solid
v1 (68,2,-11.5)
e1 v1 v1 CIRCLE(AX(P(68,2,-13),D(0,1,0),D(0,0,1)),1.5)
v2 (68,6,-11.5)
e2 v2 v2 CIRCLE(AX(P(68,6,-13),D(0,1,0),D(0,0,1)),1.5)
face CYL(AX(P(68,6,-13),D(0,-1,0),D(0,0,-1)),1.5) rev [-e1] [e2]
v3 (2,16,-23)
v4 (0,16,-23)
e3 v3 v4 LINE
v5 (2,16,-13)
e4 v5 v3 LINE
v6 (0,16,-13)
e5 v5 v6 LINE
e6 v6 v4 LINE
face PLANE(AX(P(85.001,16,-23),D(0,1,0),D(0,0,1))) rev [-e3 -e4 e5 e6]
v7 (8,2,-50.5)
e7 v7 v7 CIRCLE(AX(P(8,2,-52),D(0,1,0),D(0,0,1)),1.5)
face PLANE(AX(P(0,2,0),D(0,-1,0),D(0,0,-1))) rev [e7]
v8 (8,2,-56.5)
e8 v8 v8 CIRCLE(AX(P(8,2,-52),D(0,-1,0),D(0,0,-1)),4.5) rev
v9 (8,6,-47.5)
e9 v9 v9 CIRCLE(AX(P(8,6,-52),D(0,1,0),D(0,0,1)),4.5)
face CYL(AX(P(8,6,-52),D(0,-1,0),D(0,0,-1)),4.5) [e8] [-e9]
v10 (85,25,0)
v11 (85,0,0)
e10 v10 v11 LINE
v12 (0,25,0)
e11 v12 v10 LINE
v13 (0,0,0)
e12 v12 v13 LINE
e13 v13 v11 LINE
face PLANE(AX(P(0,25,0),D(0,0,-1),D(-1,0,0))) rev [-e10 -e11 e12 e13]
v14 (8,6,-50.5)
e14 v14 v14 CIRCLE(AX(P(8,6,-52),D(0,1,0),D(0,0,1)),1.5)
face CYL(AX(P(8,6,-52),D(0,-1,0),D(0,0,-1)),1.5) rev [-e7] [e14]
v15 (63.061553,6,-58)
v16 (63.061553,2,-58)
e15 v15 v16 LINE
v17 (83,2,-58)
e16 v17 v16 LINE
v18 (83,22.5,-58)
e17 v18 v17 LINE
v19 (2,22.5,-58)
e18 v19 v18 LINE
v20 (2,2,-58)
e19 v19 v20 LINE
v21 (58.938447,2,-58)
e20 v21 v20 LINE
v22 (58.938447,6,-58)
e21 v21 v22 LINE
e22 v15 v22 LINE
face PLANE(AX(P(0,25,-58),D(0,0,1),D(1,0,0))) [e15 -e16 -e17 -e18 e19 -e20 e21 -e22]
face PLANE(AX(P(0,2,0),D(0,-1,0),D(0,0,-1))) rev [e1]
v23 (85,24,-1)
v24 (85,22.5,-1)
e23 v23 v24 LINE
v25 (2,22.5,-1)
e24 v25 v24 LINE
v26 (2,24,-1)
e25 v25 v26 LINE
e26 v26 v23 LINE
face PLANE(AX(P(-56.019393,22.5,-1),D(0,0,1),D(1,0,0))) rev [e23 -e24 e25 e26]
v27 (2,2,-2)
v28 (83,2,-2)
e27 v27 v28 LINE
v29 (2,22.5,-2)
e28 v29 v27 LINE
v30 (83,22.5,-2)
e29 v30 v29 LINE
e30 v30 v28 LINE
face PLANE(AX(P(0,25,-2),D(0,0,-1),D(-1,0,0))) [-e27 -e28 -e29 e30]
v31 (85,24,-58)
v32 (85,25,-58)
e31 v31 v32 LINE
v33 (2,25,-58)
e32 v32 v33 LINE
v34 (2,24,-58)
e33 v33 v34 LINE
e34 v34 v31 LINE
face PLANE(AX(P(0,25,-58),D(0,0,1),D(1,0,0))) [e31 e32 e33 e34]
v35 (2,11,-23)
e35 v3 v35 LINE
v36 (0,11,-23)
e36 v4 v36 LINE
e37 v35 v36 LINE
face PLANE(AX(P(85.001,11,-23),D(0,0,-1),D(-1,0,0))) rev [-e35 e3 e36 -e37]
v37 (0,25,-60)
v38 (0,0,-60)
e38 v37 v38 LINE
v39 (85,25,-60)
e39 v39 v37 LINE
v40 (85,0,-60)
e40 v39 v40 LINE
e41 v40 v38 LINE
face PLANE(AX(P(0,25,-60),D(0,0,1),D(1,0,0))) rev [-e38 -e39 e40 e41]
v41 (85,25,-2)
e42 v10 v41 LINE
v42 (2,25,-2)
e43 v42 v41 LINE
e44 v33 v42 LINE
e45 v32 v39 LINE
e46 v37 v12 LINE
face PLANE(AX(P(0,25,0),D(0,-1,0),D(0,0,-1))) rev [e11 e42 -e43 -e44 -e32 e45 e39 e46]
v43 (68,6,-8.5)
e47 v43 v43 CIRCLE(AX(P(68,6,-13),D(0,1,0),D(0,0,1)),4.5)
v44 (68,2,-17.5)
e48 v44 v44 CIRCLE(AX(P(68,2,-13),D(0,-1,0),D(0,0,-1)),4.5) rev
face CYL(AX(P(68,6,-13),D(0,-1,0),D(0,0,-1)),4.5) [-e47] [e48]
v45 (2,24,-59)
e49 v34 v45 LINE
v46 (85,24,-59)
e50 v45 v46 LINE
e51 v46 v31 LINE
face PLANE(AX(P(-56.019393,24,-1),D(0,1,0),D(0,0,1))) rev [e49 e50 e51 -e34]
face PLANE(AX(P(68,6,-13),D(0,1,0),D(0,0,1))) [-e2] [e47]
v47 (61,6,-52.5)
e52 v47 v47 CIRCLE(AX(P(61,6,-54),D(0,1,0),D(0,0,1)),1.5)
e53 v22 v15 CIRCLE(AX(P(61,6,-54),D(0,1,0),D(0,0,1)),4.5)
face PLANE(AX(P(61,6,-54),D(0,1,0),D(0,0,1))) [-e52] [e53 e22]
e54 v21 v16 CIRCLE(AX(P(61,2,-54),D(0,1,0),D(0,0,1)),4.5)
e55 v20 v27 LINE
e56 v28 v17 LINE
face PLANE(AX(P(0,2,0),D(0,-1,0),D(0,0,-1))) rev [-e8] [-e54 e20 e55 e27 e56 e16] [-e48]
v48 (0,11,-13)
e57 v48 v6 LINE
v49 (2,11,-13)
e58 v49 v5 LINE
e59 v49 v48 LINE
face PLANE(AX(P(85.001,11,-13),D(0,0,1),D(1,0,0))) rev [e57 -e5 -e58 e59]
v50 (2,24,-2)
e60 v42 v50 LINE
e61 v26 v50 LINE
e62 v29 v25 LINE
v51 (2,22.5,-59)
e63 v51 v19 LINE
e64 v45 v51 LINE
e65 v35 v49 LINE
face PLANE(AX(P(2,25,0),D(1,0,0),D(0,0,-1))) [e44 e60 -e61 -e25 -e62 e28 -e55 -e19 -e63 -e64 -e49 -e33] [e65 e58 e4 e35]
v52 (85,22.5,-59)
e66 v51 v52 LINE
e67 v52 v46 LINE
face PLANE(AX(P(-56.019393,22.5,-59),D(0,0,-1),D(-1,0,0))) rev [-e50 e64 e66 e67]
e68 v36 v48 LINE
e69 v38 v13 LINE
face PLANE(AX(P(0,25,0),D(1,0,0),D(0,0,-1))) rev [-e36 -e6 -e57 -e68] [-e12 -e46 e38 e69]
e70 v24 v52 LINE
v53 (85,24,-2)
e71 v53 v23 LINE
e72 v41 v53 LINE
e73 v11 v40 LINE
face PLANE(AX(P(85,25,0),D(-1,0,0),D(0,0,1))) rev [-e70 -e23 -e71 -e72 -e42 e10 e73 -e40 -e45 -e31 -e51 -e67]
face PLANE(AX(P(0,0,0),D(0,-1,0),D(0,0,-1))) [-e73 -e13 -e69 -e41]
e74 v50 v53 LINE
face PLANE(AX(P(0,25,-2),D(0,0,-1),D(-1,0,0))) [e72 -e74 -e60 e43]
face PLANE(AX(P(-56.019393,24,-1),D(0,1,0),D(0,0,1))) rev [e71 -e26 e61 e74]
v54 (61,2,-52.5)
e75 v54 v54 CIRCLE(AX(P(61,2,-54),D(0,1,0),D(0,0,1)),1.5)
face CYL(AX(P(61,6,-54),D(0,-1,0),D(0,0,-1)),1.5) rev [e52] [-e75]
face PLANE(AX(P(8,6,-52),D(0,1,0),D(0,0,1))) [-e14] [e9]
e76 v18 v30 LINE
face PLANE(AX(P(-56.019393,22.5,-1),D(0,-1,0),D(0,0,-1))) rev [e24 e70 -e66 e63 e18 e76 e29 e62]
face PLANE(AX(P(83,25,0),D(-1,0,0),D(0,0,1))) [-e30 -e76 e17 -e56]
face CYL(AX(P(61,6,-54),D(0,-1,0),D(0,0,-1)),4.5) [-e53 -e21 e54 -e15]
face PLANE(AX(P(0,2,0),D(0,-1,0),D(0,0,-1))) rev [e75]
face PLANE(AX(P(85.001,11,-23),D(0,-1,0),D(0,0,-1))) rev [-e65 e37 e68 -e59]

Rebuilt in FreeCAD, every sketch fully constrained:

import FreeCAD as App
import Part
import Sketcher


def faces_at(feature, points):
    """Names of the faces that lie closest to the given points."""
    faces = feature.Shape.Faces
    near = lambda p: min(range(len(faces)), key=lambda i: faces[i].distToShape(Part.Vertex(*p))[0])
    return sorted({f"Face{near(p) + 1}" for p in points})


def add_polygon(sketch, points):
    """Adds a closed chain of lines whose ends are joined by coincident constraints."""
    first, n = sketch.GeometryCount, len(points)
    for a, b in zip(points, points[1:] + points[:1]):
        sketch.addGeometry(Part.LineSegment(App.Vector(*a, 0), App.Vector(*b, 0)), False)
    for i in range(n):
        sketch.addConstraint(Sketcher.Constraint("Coincident", first + i, 2, first + (i + 1) % n, 1))

doc = App.newDocument("Part")
body = doc.addObject("PartDesign::Body", "Body")

# Sketch on XZ plane
sketch1 = doc.addObject("Sketcher::SketchObject", "Sketch")
body.addObject(sketch1)
sketch1.AttachmentSupport = (doc.XZ_Plane, [""])
sketch1.MapMode = "FlatFace"
add_polygon(sketch1, [(0, -60), (0, 0), (85, 0), (85, -60)])  # lines 0-3
sketch1.addConstraint([
    Sketcher.Constraint("Vertical", 0),
    Sketcher.Constraint("Horizontal", 1),
    Sketcher.Constraint("Vertical", 2),
    Sketcher.Constraint("Horizontal", 3),
    Sketcher.Constraint("Coincident", 0, 2, -1, 1),
    Sketcher.Constraint("DistanceX", 1, 1, 1, 2, 85.0),
    Sketcher.Constraint("DistanceY", 0, 1, 0, 2, 60.0),
])
pad1 = doc.addObject("PartDesign::Pad", "Pad")
body.addObject(pad1)
pad1.Profile = sketch1
pad1.Length = 25
pad1.Reversed = True
doc.recompute()

thickness = doc.addObject("PartDesign::Thickness", "Thickness")
body.addObject(thickness)
thickness.Base = (pad1, faces_at(pad1, [(42.5, 25, -30)]))
thickness.Value = 2
thickness.Reversed = True
thickness.Join = "Intersection"

# Sketch on XZ plane
sketch2 = doc.addObject("Sketcher::SketchObject", "Sketch001")
body.addObject(sketch2)
sketch2.AttachmentSupport = (doc.XZ_Plane, [""])
sketch2.MapMode = "FlatFace"
sketch2.AttachmentOffset = App.Placement(App.Vector(0, 0, -2), App.Rotation())
sketch2.addGeometry([
    Part.Circle(App.Vector(8, -52, 0), App.Vector(0, 0, 1), 4.5),  # 0
    Part.Circle(App.Vector(8, -52, 0), App.Vector(0, 0, 1), 1.5),  # 1
    Part.Circle(App.Vector(61, -54, 0), App.Vector(0, 0, 1), 4.5),  # 2
    Part.Circle(App.Vector(61, -54, 0), App.Vector(0, 0, 1), 1.5),  # 3
    Part.Circle(App.Vector(68, -13, 0), App.Vector(0, 0, 1), 4.5),  # 4
    Part.Circle(App.Vector(68, -13, 0), App.Vector(0, 0, 1), 1.5),  # 5
], False)
sketch2.addConstraint([
    Sketcher.Constraint("Coincident", 1, 3, 0, 3),
    Sketcher.Constraint("Coincident", 3, 3, 2, 3),
    Sketcher.Constraint("Coincident", 5, 3, 4, 3),
    Sketcher.Constraint("Equal", 0, 2),
    Sketcher.Constraint("Equal", 1, 3),
    Sketcher.Constraint("Equal", 2, 4),
    Sketcher.Constraint("Equal", 3, 5),
    Sketcher.Constraint("Diameter", 0, 9.0),
    Sketcher.Constraint("Diameter", 1, 3.0),
    Sketcher.Constraint("DistanceX", -1, 1, 0, 3, 8.0),
    Sketcher.Constraint("DistanceY", 0, 3, -1, 1, 52.0),
    Sketcher.Constraint("DistanceX", -1, 1, 2, 3, 61.0),
    Sketcher.Constraint("DistanceY", 2, 3, -1, 1, 54.0),
    Sketcher.Constraint("DistanceX", -1, 1, 4, 3, 68.0),
    Sketcher.Constraint("DistanceY", 4, 3, -1, 1, 13.0),
])
pad2 = doc.addObject("PartDesign::Pad", "Pad001")
body.addObject(pad2)
pad2.Profile = sketch2
pad2.Length = 4
pad2.Reversed = True

# Sketch on YZ plane
sketch3 = doc.addObject("Sketcher::SketchObject", "Sketch002")
body.addObject(sketch3)
sketch3.AttachmentSupport = (doc.YZ_Plane, [""])
sketch3.MapMode = "FlatFace"
add_polygon(sketch3, [(16, -23), (11, -23), (11, -13), (16, -13)])  # lines 0-3
sketch3.addConstraint([
    Sketcher.Constraint("Horizontal", 0),
    Sketcher.Constraint("Vertical", 1),
    Sketcher.Constraint("Horizontal", 2),
    Sketcher.Constraint("Vertical", 3),
    Sketcher.Constraint("DistanceX", 0, 2, 0, 1, 5.0),
    Sketcher.Constraint("DistanceY", 1, 1, 1, 2, 10.0),
    Sketcher.Constraint("DistanceX", -1, 1, 0, 2, 11.0),
    Sketcher.Constraint("DistanceY", 0, 2, -1, 1, 23.0),
])
pocket1 = doc.addObject("PartDesign::Pocket", "Pocket")
body.addObject(pocket1)
pocket1.Profile = sketch3
pocket1.Type = "UpToFirst"
pocket1.Reversed = True

# Sketch on YZ plane
sketch4 = doc.addObject("Sketcher::SketchObject", "Sketch003")
body.addObject(sketch4)
sketch4.AttachmentSupport = (doc.YZ_Plane, [""])
sketch4.MapMode = "FlatFace"
sketch4.AttachmentOffset = App.Placement(App.Vector(0, 0, 85), App.Rotation())
add_polygon(sketch4, [(25, -2), (24, -2), (24, -58), (25, -58)])  # lines 0-3
sketch4.addConstraint([
    Sketcher.Constraint("Horizontal", 0),
    Sketcher.Constraint("Vertical", 1),
    Sketcher.Constraint("Horizontal", 2),
    Sketcher.Constraint("Vertical", 3),
    Sketcher.Constraint("DistanceX", 0, 2, 0, 1, 1.0),
    Sketcher.Constraint("DistanceY", 1, 2, 1, 1, 56.0),
    Sketcher.Constraint("DistanceX", -1, 1, 0, 2, 24.0),
    Sketcher.Constraint("DistanceY", 0, 2, -1, 1, 2.0),
])
pocket2 = doc.addObject("PartDesign::Pocket", "Pocket001")
body.addObject(pocket2)
pocket2.Profile = sketch4
pocket2.Type = "UpToFirst"

# Sketch on YZ plane
sketch5 = doc.addObject("Sketcher::SketchObject", "Sketch004")
body.addObject(sketch5)
sketch5.AttachmentSupport = (doc.YZ_Plane, [""])
sketch5.MapMode = "FlatFace"
sketch5.AttachmentOffset = App.Placement(App.Vector(0, 0, 85), App.Rotation())
add_polygon(sketch5, [(24, -1), (22.5, -1), (22.5, -59), (24, -59)])  # lines 0-3
sketch5.addConstraint([
    Sketcher.Constraint("Horizontal", 0),
    Sketcher.Constraint("Vertical", 1),
    Sketcher.Constraint("Horizontal", 2),
    Sketcher.Constraint("Vertical", 3),
    Sketcher.Constraint("DistanceY", 1, 2, 1, 1, 58.0),
    Sketcher.Constraint("DistanceX", 0, 2, 0, 1, 1.5),
    Sketcher.Constraint("DistanceY", 0, 2, -1, 1, 1.0),
    Sketcher.Constraint("DistanceX", -1, 1, 2, 2, 24.0),
])
pocket3 = doc.addObject("PartDesign::Pocket", "Pocket002")
body.addObject(pocket3)
pocket3.Profile = sketch5
pocket3.Length = 83

doc.recompute()
